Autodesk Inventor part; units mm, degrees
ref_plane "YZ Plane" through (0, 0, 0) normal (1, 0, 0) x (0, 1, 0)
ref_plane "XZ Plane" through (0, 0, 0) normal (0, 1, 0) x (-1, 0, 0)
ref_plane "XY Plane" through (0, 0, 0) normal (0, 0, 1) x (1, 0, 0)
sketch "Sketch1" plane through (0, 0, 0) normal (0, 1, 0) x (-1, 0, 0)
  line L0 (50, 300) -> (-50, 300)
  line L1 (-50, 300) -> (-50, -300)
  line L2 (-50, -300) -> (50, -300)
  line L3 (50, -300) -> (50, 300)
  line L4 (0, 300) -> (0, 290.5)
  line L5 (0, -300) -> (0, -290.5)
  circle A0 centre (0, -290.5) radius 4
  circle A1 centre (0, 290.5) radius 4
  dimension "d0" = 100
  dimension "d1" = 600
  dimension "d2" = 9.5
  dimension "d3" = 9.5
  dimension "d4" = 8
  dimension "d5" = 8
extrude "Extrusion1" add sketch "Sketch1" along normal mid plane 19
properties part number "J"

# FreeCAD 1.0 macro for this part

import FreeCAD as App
import Part
import Sketcher


def add_polygon(sketch, points):
    """Adds a closed chain of lines whose ends are joined by coincident constraints."""
    first, n = sketch.GeometryCount, len(points)
    for a, b in zip(points, points[1:] + points[:1]):
        sketch.addGeometry(Part.LineSegment(App.Vector(*a, 0), App.Vector(*b, 0)), False)
    for i in range(n):
        sketch.addConstraint(Sketcher.Constraint("Coincident", first + i, 2, first + (i + 1) % n, 1))

doc = App.newDocument("Part")
body = doc.addObject("PartDesign::Body", "Body")

sketch1 = doc.addObject("Sketcher::SketchObject", "Sketch")
body.addObject(sketch1)
sketch1.AttachmentSupport = (doc.XZ_Plane, [""])
sketch1.MapMode = "FlatFace"
add_polygon(sketch1, [(-50, -300), (-50, 300), (0, 300), (50, 300), (50, -300), (0, -300)])
sketch1.addGeometry(Part.Circle(App.Vector(0, -290.5, 0), App.Vector(0, 0, 1), 4), False)
sketch1.addGeometry(Part.Circle(App.Vector(0, 290.5, 0), App.Vector(0, 0, 1), 4), False)
sketch1.addConstraint(Sketcher.Constraint("Vertical", 0))
sketch1.addConstraint(Sketcher.Constraint("Horizontal", 1))
sketch1.addConstraint(Sketcher.Constraint("Horizontal", 2))
sketch1.addConstraint(Sketcher.Constraint("Vertical", 3))
sketch1.addConstraint(Sketcher.Constraint("Horizontal", 4))
sketch1.addConstraint(Sketcher.Constraint("Horizontal", 5))
sketch1.addConstraint(Sketcher.Constraint("Equal", 6, 7))
sketch1.addConstraint(Sketcher.Constraint("Symmetric", 6, 3, 7, 3, -1, 1))
sketch1.addConstraint(Sketcher.Constraint("Symmetric", 0, 2, 3, 2, -1, 1))
sketch1.addConstraint(Sketcher.Constraint("PointOnObject", 6, 3, -2))
sketch1.addConstraint(Sketcher.Constraint("PointOnObject", 1, 2, -2))
sketch1.addConstraint(Sketcher.Constraint("PointOnObject", 4, 2, -2))
sketch1.addConstraint(Sketcher.Constraint("Diameter", 6, 8.0))
sketch1.addConstraint(Sketcher.Constraint("DistanceY", 0, 1, 0, 2, 600.0))
sketch1.addConstraint(Sketcher.Constraint("DistanceX", 0, 2, 2, 2, 100.0))
sketch1.addConstraint(Sketcher.Constraint("DistanceY", 7, 3, 0, 2, 9.5))
pad1 = doc.addObject("PartDesign::Pad", "Pad")
body.addObject(pad1)
pad1.Profile = sketch1
pad1.Length = 19
pad1.Midplane = True

doc.recompute()
